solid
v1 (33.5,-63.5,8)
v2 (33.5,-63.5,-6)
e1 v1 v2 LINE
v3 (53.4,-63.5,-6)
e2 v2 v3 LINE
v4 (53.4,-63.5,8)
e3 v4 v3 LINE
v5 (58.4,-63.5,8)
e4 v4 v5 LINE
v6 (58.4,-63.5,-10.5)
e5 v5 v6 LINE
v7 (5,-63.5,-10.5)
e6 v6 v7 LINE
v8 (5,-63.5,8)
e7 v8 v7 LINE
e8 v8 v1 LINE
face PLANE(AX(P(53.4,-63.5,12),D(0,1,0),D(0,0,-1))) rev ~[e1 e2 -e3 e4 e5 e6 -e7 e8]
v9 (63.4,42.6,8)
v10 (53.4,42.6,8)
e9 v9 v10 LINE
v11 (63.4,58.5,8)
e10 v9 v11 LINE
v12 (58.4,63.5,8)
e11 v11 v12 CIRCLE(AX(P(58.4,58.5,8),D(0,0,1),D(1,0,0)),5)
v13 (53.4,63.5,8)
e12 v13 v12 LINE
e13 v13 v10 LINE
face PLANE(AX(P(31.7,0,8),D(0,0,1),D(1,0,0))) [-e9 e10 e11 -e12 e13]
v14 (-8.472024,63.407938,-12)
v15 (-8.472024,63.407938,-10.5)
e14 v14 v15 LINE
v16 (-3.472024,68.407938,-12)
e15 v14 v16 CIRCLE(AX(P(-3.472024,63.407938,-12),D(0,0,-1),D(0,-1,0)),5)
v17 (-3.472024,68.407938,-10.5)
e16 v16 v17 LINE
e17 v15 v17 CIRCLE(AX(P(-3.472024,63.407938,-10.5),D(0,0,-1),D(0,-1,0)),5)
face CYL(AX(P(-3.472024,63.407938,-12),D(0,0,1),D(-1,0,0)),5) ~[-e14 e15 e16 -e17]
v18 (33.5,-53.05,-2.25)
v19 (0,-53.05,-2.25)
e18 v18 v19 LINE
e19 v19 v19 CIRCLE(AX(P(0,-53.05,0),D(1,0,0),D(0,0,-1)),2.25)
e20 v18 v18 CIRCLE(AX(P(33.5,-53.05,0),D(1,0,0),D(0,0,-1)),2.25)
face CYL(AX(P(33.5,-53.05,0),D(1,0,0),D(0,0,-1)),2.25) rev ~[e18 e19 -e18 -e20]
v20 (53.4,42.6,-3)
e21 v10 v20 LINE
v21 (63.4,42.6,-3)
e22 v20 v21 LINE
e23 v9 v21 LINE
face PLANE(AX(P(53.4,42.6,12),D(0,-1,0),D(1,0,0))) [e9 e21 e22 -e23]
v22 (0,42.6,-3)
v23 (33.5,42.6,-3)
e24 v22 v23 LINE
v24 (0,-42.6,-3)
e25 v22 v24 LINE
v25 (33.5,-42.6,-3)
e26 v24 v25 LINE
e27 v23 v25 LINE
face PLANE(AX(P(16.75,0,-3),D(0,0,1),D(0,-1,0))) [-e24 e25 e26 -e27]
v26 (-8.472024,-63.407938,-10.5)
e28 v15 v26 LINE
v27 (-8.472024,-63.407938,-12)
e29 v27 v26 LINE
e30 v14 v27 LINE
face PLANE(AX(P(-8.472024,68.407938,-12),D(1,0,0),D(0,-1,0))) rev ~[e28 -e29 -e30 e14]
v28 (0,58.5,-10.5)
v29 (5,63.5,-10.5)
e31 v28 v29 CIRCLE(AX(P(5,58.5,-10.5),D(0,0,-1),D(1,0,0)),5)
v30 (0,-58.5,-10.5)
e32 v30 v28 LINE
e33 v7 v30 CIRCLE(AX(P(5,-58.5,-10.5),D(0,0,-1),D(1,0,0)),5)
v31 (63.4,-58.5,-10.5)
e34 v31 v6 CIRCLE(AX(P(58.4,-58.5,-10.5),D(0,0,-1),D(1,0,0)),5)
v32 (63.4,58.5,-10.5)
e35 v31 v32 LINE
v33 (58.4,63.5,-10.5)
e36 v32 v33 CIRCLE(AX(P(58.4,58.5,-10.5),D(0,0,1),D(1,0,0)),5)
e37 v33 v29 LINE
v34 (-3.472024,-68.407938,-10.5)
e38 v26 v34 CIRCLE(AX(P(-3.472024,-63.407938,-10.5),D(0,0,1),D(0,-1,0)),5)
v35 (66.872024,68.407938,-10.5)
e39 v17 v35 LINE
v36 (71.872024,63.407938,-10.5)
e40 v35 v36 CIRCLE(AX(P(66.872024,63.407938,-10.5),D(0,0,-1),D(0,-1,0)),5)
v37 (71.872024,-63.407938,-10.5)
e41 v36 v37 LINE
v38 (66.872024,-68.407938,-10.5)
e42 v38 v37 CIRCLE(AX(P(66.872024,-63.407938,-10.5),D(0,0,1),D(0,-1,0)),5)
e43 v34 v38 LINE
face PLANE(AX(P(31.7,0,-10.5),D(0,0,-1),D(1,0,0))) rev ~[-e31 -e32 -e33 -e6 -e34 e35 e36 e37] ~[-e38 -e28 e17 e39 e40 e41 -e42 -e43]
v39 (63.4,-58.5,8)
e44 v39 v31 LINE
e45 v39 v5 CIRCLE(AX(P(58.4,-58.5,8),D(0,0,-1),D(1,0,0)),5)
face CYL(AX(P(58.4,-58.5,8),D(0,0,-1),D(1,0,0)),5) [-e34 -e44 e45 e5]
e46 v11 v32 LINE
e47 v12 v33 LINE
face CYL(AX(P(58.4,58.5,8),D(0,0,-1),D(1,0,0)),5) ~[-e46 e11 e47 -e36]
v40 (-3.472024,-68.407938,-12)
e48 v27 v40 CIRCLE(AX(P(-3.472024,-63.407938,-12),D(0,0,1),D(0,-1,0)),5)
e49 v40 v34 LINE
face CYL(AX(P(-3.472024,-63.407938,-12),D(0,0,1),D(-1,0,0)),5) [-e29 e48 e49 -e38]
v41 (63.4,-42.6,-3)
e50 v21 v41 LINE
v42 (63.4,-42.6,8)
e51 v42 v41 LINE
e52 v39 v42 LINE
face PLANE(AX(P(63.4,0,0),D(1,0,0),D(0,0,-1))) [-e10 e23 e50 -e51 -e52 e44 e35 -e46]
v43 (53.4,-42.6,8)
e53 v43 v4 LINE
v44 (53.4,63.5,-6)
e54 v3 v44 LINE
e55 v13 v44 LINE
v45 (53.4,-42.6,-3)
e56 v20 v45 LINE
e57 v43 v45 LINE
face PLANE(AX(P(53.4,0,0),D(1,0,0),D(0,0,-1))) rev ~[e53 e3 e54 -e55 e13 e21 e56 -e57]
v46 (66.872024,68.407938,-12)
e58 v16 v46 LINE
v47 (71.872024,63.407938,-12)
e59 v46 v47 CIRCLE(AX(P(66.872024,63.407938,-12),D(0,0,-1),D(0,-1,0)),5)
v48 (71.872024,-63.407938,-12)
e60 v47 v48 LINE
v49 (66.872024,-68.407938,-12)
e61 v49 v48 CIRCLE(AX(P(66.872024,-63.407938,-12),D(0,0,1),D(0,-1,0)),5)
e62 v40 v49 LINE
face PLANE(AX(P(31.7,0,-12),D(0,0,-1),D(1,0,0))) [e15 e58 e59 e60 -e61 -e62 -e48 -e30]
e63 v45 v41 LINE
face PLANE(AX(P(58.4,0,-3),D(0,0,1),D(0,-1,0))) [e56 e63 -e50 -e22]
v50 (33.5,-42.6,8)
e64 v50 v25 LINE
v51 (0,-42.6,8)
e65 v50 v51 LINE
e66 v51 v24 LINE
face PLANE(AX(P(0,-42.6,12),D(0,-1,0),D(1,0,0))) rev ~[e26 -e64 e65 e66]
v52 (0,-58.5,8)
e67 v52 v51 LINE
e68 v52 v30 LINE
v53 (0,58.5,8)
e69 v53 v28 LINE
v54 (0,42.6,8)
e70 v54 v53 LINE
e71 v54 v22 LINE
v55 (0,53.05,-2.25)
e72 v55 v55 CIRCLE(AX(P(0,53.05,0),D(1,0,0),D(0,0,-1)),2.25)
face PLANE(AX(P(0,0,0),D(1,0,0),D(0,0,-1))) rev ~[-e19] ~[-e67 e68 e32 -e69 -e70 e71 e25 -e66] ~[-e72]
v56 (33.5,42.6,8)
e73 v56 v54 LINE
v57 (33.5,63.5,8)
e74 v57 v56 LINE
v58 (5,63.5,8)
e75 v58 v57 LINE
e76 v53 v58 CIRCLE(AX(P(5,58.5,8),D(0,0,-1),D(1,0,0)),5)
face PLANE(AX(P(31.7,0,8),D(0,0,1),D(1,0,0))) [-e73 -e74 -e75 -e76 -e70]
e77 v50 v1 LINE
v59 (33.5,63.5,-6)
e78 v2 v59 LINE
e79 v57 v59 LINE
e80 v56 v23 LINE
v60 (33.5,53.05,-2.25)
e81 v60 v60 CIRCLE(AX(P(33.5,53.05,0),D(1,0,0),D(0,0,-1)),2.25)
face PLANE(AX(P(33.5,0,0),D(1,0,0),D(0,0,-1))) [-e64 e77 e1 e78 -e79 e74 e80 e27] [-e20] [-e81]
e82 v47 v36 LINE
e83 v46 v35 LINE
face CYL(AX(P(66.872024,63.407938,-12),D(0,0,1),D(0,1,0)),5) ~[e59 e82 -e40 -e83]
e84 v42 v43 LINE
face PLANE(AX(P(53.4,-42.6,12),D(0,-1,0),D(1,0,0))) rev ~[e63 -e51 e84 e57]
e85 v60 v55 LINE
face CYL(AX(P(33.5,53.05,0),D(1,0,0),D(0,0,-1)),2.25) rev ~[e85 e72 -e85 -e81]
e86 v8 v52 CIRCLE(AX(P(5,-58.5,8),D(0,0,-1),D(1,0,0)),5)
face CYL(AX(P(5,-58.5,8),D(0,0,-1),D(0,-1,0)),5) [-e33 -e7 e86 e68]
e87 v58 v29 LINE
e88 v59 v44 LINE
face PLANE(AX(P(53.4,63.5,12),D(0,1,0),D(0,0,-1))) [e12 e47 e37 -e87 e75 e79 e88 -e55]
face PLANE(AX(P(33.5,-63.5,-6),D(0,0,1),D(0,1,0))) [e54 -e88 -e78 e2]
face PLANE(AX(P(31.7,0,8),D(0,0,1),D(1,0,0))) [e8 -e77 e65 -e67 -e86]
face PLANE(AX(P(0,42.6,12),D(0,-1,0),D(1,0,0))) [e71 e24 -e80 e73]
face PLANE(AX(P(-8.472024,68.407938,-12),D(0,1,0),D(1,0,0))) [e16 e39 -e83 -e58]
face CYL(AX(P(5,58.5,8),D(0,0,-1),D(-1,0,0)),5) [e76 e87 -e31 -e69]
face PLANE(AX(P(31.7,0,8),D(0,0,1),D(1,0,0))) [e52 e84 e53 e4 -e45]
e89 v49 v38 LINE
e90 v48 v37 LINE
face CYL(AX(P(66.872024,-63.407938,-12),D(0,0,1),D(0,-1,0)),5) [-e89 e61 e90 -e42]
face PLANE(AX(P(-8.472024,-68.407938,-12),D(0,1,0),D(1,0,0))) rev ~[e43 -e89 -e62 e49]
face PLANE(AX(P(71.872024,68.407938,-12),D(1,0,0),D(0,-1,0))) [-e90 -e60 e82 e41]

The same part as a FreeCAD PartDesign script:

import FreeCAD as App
import Part
import Sketcher
from FreeCAD import Vector


def edges_at(feature, points):
    """Names of the edges that pass closest to the given points."""
    edges = feature.Shape.Edges
    near = lambda p: min(range(len(edges)), key=lambda i: edges[i].distToShape(Part.Vertex(*p))[0])
    return sorted({f"Edge{near(p) + 1}" for p in points})

doc = App.newDocument("Part")
body = doc.addObject("PartDesign::Body", "Body")

sketch1 = body.newObject("Sketcher::SketchObject", "Sketch")
sketch1.AttachmentSupport = (doc.getObject("XY_Plane"), [""])
sketch1.MapMode = "FlatFace"
sketch1.addGeometry([
    Part.LineSegment(Vector(-12, 63.5, 0), Vector(-12, -63.5, 0)),
    Part.LineSegment(Vector(-12, -63.5, 0), Vector(12, -63.5, 0)),
    Part.LineSegment(Vector(12, -63.5, 0), Vector(12, 63.5, 0)),
    Part.LineSegment(Vector(12, 63.5, 0), Vector(-12, 63.5, 0)),
], False)
sketch1.addConstraint([
    Sketcher.Constraint("Coincident", 0, 2, 1, 1),
    Sketcher.Constraint("Coincident", 1, 2, 2, 1),
    Sketcher.Constraint("Coincident", 2, 2, 3, 1),
    Sketcher.Constraint("Coincident", 3, 2, 0, 1),
    Sketcher.Constraint("Vertical", 0),
    Sketcher.Constraint("Horizontal", 1),
    Sketcher.Constraint("Vertical", 2),
    Sketcher.Constraint("Horizontal", 3),
    Sketcher.Constraint("Symmetric", 0, 2, 2, 2, -1, 1),
    Sketcher.Constraint("DistanceX", 1, 1, 1, 2, 24.0),
    Sketcher.Constraint("DistanceY", 0, 2, 0, 1, 127.0),
])
pad1 = body.newObject("PartDesign::Pad", "Pad")
pad1.Profile = sketch1
pad1.Length = 33.5

sketch2 = body.newObject("Sketcher::SketchObject", "Sketch001")
sketch2.AttachmentSupport = (doc.getObject("XY_Plane"), [""])
sketch2.MapMode = "FlatFace"
sketch2.AttachmentOffset = App.Placement(Vector(0, 0, 33.5), App.Rotation())
sketch2.addGeometry([
    Part.LineSegment(Vector(6, 63.5, 0), Vector(6, -63.5, 0)),
    Part.LineSegment(Vector(6, -63.5, 0), Vector(12, -63.5, 0)),
    Part.LineSegment(Vector(12, -63.5, 0), Vector(12, 63.5, 0)),
    Part.LineSegment(Vector(12, 63.5, 0), Vector(6, 63.5, 0)),
], False)
sketch2.addConstraint([
    Sketcher.Constraint("Coincident", 0, 2, 1, 1),
    Sketcher.Constraint("Coincident", 1, 2, 2, 1),
    Sketcher.Constraint("Coincident", 2, 2, 3, 1),
    Sketcher.Constraint("Coincident", 3, 2, 0, 1),
    Sketcher.Constraint("Vertical", 0),
    Sketcher.Constraint("Horizontal", 1),
    Sketcher.Constraint("Vertical", 2),
    Sketcher.Constraint("Horizontal", 3),
    Sketcher.Constraint("DistanceX", 1, 1, 1, 2, 6.0),
    Sketcher.Constraint("DistanceY", 0, 2, 0, 1, 127.0),
    Sketcher.Constraint("DistanceX", -1, 1, 0, 2, 6.0),
    Sketcher.Constraint("DistanceY", 0, 2, -1, 1, 63.5),
])
pad2 = body.newObject("PartDesign::Pad", "Pad001")
pad2.Profile = sketch2
pad2.Length = 19.9

sketch3 = body.newObject("Sketcher::SketchObject", "Sketch002")
sketch3.AttachmentSupport = (doc.getObject("XY_Plane"), [""])
sketch3.MapMode = "FlatFace"
sketch3.AttachmentOffset = App.Placement(Vector(0, 0, 53.4), App.Rotation())
sketch3.addGeometry([
    Part.LineSegment(Vector(-12, 63.5, 0), Vector(-12, -63.5, 0)),
    Part.LineSegment(Vector(-12, -63.5, 0), Vector(12, -63.5, 0)),
    Part.LineSegment(Vector(12, -63.5, 0), Vector(12, 63.5, 0)),
    Part.LineSegment(Vector(12, 63.5, 0), Vector(-12, 63.5, 0)),
], False)
sketch3.addConstraint([
    Sketcher.Constraint("Coincident", 0, 2, 1, 1),
    Sketcher.Constraint("Coincident", 1, 2, 2, 1),
    Sketcher.Constraint("Coincident", 2, 2, 3, 1),
    Sketcher.Constraint("Coincident", 3, 2, 0, 1),
    Sketcher.Constraint("Vertical", 0),
    Sketcher.Constraint("Horizontal", 1),
    Sketcher.Constraint("Vertical", 2),
    Sketcher.Constraint("Horizontal", 3),
    Sketcher.Constraint("Symmetric", 0, 2, 2, 2, -1, 1),
    Sketcher.Constraint("DistanceX", 1, 1, 1, 2, 24.0),
    Sketcher.Constraint("DistanceY", 0, 2, 0, 1, 127.0),
])
pad3 = body.newObject("PartDesign::Pad", "Pad002")
pad3.Profile = sketch3
pad3.Length = 10

sketch4 = body.newObject("Sketcher::SketchObject", "Sketch003")
sketch4.AttachmentSupport = (doc.getObject("YZ_Plane"), [""])
sketch4.MapMode = "FlatFace"
sketch4.AttachmentOffset = App.Placement(Vector(0, 0, -12), App.Rotation())
sketch4.addGeometry([
    Part.LineSegment(Vector(42.6, 33.5, 0), Vector(42.6, 0, 0)),
    Part.LineSegment(Vector(42.6, 0, 0), Vector(-42.6, 0, 0)),
    Part.LineSegment(Vector(-42.6, 0, 0), Vector(-42.6, 33.5, 0)),
    Part.LineSegment(Vector(-42.6, 33.5, 0), Vector(42.6, 33.5, 0)),
    Part.LineSegment(Vector(42.6, 63.4, 0), Vector(42.6, 53.4, 0)),
    Part.LineSegment(Vector(42.6, 53.4, 0), Vector(-42.6, 53.4, 0)),
    Part.LineSegment(Vector(-42.6, 53.4, 0), Vector(-42.6, 63.4, 0)),
    Part.LineSegment(Vector(-42.6, 63.4, 0), Vector(42.6, 63.4, 0)),
], False)
sketch4.addConstraint([
    Sketcher.Constraint("Coincident", 0, 2, 1, 1),
    Sketcher.Constraint("Coincident", 1, 2, 2, 1),
    Sketcher.Constraint("Coincident", 2, 2, 3, 1),
    Sketcher.Constraint("Coincident", 3, 2, 0, 1),
    Sketcher.Constraint("Coincident", 4, 2, 5, 1),
    Sketcher.Constraint("Coincident", 5, 2, 6, 1),
    Sketcher.Constraint("Coincident", 6, 2, 7, 1),
    Sketcher.Constraint("Coincident", 7, 2, 4, 1),
    Sketcher.Constraint("Vertical", 0),
    Sketcher.Constraint("Horizontal", 1),
    Sketcher.Constraint("Vertical", 2),
    Sketcher.Constraint("Horizontal", 3),
    Sketcher.Constraint("Vertical", 4),
    Sketcher.Constraint("Horizontal", 5),
    Sketcher.Constraint("Vertical", 6),
    Sketcher.Constraint("Horizontal", 7),
    Sketcher.Constraint("Symmetric", 0, 2, 1, 2, -1, 1),
    Sketcher.Constraint("Vertical", 3, 2, 4, 2),
    Sketcher.Constraint("Vertical", 2, 2, 5, 2),
    Sketcher.Constraint("DistanceY", 4, 2, 4, 1, 10.0),
    Sketcher.Constraint("DistanceX", 1, 2, 1, 1, 85.2),
    Sketcher.Constraint("DistanceY", 0, 2, 0, 1, 33.5),
    Sketcher.Constraint("DistanceY", -1, 1, 4, 2, 53.4),
])
pocket1 = body.newObject("PartDesign::Pocket", "Pocket")
pocket1.Profile = sketch4
pocket1.Length = 15
pocket1.Reversed = True

sketch5 = body.newObject("Sketcher::SketchObject", "Sketch004")
sketch5.AttachmentSupport = (doc.getObject("XY_Plane"), [""])
sketch5.MapMode = "FlatFace"
sketch5.AttachmentOffset = App.Placement(Vector(0, 0, 33.5), App.Rotation())
sketch5.addGeometry([
    Part.Circle(Vector(0, 53.05, 0), Vector(0, 0, 1), 2.25),
    Part.Circle(Vector(0, -53.05, 0), Vector(0, 0, 1), 2.25),
], False)
sketch5.addConstraint([
    Sketcher.Constraint("Equal", 0, 1),
    Sketcher.Constraint("Symmetric", 0, 3, 1, 3, -1, 1),
    Sketcher.Constraint("PointOnObject", 0, 3, -2),
    Sketcher.Constraint("Diameter", 0, 4.5),
    Sketcher.Constraint("DistanceY", 1, 3, 0, 3, 106.1),
])
pocket2 = body.newObject("PartDesign::Pocket", "Pocket001")
pocket2.Profile = sketch5
pocket2.Type = "ThroughAll"
body2 = doc.addObject("PartDesign::Body", "Body001")
doc.recompute()

body.Placement = App.Placement(Vector(0, 0, 0), App.Rotation(Vector(0, 1, 0), 90))
boolean = body2.newObject("PartDesign::Boolean", "Boolean")
boolean.Type = "Fuse"
boolean.addObjects([body])

sketch6 = body2.newObject("Sketcher::SketchObject", "Sketch005")
sketch6.AttachmentSupport = (doc.getObject("XY_Plane001"), [""])
sketch6.MapMode = "FlatFace"
sketch6.AttachmentOffset = App.Placement(Vector(0, 0, 12), App.Rotation())
sketch6.addGeometry([
    Part.LineSegment(Vector(0, 63.5, 0), Vector(0, -63.5, 0)),
    Part.LineSegment(Vector(0, -63.5, 0), Vector(63.4, -63.5, 0)),
    Part.LineSegment(Vector(63.4, -63.5, 0), Vector(63.4, 63.5, 0)),
    Part.LineSegment(Vector(63.4, 63.5, 0), Vector(0, 63.5, 0)),
], False)
sketch6.addConstraint([
    Sketcher.Constraint("Coincident", 0, 2, 1, 1),
    Sketcher.Constraint("Coincident", 1, 2, 2, 1),
    Sketcher.Constraint("Coincident", 2, 2, 3, 1),
    Sketcher.Constraint("Coincident", 3, 2, 0, 1),
    Sketcher.Constraint("Vertical", 0),
    Sketcher.Constraint("Horizontal", 1),
    Sketcher.Constraint("Vertical", 2),
    Sketcher.Constraint("Horizontal", 3),
    Sketcher.Constraint("Symmetric", 0, 2, 3, 2, -1, 1),
    Sketcher.Constraint("DistanceY", 0, 2, 0, 1, 127.0),
    Sketcher.Constraint("DistanceX", 1, 1, 1, 2, 63.4),
])
pocket3 = body2.newObject("PartDesign::Pocket", "Pocket002")
pocket3.Profile = sketch6
pocket3.Length = 4

sketch7 = body2.newObject("Sketcher::SketchObject", "Sketch006")
sketch7.AttachmentSupport = (doc.getObject("XY_Plane001"), [""])
sketch7.MapMode = "FlatFace"
sketch7.AttachmentOffset = App.Placement(Vector(0, 0, -12), App.Rotation())
sketch7.addGeometry([
    Part.LineSegment(Vector(-8.472024, -68.407938, 0), Vector(-8.472024, 68.407938, 0)),
    Part.LineSegment(Vector(-8.472024, 68.407938, 0), Vector(71.872024, 68.407938, 0)),
    Part.LineSegment(Vector(71.872024, 68.407938, 0), Vector(71.872024, -68.407938, 0)),
    Part.LineSegment(Vector(71.872024, -68.407938, 0), Vector(-8.472024, -68.407938, 0)),
], False)
sketch7.addConstraint([
    Sketcher.Constraint("Coincident", 0, 2, 1, 1),
    Sketcher.Constraint("Coincident", 1, 2, 2, 1),
    Sketcher.Constraint("Coincident", 2, 2, 3, 1),
    Sketcher.Constraint("Coincident", 3, 2, 0, 1),
    Sketcher.Constraint("Vertical", 0),
    Sketcher.Constraint("Horizontal", 1),
    Sketcher.Constraint("Vertical", 2),
    Sketcher.Constraint("Horizontal", 3),
    Sketcher.Constraint("DistanceX", 1, 1, 1, 2, 80.344048),
    Sketcher.Constraint("DistanceY", 0, 1, 0, 2, 136.815876),
    Sketcher.Constraint("DistanceX", 0, 2, -1, 1, 8.472024),
    Sketcher.Constraint("DistanceY", -1, 1, 0, 2, 68.407938),
])
pad4 = body2.newObject("PartDesign::Pad", "Pad003")
pad4.Profile = sketch7
pad4.Length = 1.5
doc.recompute()

fillet = body2.newObject("PartDesign::Fillet", "Fillet")
fillet.Base = (pad4, edges_at(pad4, [
    (63.4, 63.5, -1.25),
    (0, 63.5, -1.25),
    (-8.472, 68.408, -11.25),
    (71.872, 68.408, -11.25),
    (0, -63.5, -1.25),
    (63.4, -63.5, -1.25),
    (71.872, -68.408, -11.25),
    (-8.472, -68.408, -11.25),
]))
fillet.Radius = 5

doc.recompute()
